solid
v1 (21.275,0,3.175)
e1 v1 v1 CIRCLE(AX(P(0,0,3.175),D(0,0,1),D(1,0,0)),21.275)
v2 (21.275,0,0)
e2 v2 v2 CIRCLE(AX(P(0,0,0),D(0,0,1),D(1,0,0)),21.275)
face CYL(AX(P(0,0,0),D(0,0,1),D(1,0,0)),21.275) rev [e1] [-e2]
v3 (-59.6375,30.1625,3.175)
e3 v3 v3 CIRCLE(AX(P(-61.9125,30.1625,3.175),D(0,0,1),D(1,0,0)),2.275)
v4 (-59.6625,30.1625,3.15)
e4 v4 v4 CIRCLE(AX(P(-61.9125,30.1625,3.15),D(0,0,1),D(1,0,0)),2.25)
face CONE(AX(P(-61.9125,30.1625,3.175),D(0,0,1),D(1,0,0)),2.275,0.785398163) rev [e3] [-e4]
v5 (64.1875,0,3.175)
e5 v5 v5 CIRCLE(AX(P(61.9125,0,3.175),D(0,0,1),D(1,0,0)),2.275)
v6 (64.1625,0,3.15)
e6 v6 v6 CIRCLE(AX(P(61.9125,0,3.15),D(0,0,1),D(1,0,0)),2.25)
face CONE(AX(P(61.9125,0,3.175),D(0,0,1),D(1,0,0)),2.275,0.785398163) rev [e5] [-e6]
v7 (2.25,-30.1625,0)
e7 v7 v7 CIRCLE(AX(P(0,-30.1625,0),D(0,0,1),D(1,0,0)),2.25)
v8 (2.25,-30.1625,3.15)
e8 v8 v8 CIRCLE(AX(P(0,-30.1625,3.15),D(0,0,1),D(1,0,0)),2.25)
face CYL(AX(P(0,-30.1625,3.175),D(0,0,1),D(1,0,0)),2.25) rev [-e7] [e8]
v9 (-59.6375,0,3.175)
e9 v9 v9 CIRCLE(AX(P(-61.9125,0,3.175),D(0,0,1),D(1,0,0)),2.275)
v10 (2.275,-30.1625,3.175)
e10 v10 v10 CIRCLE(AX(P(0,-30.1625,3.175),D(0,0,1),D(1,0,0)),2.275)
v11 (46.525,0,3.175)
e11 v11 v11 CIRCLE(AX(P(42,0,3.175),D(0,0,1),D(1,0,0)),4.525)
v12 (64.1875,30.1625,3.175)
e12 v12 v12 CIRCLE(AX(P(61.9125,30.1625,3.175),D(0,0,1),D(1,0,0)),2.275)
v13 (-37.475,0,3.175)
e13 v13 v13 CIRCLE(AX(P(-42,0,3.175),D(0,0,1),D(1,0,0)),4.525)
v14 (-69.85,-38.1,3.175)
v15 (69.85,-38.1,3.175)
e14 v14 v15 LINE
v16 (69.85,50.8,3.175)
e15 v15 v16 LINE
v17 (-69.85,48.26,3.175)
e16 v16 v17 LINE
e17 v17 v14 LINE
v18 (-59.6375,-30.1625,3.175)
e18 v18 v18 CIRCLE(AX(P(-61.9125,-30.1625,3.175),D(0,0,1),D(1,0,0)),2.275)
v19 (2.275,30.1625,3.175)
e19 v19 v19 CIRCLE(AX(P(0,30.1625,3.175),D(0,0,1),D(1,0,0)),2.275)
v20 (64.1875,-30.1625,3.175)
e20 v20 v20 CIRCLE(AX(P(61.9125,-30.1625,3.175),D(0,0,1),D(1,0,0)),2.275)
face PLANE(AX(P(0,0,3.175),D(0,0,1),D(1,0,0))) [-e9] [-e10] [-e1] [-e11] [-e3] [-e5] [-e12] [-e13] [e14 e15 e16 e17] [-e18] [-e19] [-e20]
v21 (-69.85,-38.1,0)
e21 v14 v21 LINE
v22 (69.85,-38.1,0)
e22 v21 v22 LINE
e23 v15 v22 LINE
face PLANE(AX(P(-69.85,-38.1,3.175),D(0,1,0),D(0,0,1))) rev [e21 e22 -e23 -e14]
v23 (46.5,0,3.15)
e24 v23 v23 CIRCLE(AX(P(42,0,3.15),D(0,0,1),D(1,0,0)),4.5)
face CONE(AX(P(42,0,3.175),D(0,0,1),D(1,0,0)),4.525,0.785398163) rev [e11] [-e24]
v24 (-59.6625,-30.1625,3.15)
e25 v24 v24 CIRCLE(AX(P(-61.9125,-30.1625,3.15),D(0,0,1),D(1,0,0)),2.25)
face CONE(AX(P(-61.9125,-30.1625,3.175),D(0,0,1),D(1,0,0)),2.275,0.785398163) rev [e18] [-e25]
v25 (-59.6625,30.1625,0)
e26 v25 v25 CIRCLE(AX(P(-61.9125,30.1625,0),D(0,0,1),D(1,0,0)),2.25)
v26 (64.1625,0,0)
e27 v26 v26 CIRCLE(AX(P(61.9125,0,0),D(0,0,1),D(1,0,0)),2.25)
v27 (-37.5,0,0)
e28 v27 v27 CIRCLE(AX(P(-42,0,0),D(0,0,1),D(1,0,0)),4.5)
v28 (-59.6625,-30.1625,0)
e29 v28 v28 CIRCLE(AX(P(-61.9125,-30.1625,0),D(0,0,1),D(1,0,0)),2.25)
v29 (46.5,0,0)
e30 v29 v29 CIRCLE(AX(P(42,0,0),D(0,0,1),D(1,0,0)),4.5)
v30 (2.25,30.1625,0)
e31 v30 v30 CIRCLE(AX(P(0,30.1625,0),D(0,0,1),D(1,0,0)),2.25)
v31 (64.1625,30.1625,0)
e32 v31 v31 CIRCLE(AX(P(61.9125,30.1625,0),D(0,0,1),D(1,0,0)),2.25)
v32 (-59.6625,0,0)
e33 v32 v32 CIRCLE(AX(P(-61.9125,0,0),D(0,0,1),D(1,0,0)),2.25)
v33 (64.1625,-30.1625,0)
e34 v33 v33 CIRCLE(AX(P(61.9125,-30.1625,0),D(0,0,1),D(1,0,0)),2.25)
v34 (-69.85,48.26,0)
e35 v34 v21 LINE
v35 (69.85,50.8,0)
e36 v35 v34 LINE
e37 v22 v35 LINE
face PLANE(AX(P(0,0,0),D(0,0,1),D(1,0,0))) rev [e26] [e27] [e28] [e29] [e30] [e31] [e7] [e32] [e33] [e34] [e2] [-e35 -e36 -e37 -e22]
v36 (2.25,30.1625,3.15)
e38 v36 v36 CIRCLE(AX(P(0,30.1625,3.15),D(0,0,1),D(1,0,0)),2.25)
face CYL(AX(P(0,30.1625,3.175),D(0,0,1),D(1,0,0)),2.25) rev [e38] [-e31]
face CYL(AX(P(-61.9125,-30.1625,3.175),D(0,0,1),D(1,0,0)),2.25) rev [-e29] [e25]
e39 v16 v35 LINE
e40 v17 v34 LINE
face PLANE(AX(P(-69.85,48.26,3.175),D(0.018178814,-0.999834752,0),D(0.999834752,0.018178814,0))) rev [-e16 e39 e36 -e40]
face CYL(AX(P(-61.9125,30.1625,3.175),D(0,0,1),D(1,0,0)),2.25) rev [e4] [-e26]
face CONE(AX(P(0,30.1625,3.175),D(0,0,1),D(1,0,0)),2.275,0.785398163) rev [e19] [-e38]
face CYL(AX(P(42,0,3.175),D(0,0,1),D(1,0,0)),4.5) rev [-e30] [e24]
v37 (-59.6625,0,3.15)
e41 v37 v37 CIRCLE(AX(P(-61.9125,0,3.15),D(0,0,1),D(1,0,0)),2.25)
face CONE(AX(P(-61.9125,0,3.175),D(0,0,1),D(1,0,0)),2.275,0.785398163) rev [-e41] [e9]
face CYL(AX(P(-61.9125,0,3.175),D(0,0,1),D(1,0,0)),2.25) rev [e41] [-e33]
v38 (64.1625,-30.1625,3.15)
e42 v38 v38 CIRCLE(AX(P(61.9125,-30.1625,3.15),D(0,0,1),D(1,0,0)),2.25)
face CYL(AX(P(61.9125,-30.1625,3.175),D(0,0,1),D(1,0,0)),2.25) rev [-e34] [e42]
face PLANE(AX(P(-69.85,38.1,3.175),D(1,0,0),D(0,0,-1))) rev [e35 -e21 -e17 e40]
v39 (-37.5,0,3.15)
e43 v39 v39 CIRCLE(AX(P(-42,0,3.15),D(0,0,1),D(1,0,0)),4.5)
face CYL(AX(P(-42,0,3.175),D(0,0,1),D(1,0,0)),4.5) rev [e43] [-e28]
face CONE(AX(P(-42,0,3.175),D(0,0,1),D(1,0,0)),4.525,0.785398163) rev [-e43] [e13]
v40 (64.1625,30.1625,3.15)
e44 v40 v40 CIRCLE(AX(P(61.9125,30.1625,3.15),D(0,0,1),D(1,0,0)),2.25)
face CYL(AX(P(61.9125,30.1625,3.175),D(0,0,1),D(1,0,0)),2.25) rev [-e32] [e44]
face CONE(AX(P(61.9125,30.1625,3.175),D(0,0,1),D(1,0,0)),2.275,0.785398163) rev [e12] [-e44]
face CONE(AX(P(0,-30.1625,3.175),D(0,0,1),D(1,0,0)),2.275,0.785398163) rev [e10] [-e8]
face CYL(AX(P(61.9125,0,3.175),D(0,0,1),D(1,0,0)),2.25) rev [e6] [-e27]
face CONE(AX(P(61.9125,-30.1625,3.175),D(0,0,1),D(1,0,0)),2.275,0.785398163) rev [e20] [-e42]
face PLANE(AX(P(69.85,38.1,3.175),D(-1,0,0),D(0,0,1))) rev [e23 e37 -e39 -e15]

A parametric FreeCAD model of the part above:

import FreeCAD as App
import Part
import Sketcher

V = App.Vector
Q = App.Units.Quantity

doc = App.newDocument("Part")
body = doc.addObject("PartDesign::Body", "Body")

sketch1 = doc.addObject("Sketcher::SketchObject", "Sketch")
body.addObject(sketch1)
sketch1.AttachmentSupport = (doc.XY_Plane, [""])
sketch1.MapMode = "FlatFace"
sketch1.addGeometry([
    Part.LineSegment(V(-69.85, 48.26, 0), V(-69.85, -38.1, 0)),
    Part.LineSegment(V(-69.85, -38.1, 0), V(69.85, -38.1, 0)),
    Part.LineSegment(V(69.85, -38.1, 0), V(69.85, 50.8, 0)),
    Part.LineSegment(V(69.85, 50.8, 0), V(-69.85, 48.26, 0)),
], False)
sketch1.addConstraint([
    Sketcher.Constraint("Coincident", 0, 2, 1, 1),
    Sketcher.Constraint("Coincident", 1, 2, 2, 1),
    Sketcher.Constraint("Coincident", 2, 2, 3, 1),
    Sketcher.Constraint("Coincident", 3, 2, 0, 1),
    Sketcher.Constraint("Vertical", 0),
    Sketcher.Constraint("Horizontal", 1),
    Sketcher.Constraint("Vertical", 2),
    Sketcher.Constraint("DistanceX", 1, 1, 1, 2, Q("5.5 in")),
    Sketcher.Constraint("DistanceY", 0, 2, 0, 1, Q("3.4 in")),
    Sketcher.Constraint("DistanceY", 2, 1, 2, 2, Q("3.5 in")),
    Sketcher.Constraint("DistanceY", -1, 1, 2, 2, Q("2 in")),
    Sketcher.Constraint("DistanceX", 0, 2, -1, 1, Q("2.75 in")),
])
pad1 = doc.addObject("PartDesign::Pad", "Pad")
body.addObject(pad1)
pad1.Profile = sketch1
pad1.Length = Q("0.125 in")

sketch2 = doc.addObject("Sketcher::SketchObject", "Sketch001")
body.addObject(sketch2)
sketch2.AttachmentSupport = (doc.XY_Plane, [""])
sketch2.MapMode = "FlatFace"
sketch2.AttachmentOffset = App.Placement(V(0, 0, 0.125 * 25.4), App.Rotation())
sketch2.addGeometry([
    Part.Circle(V(-61.9125, -30.1625, 0), V(0, 0, 1), 2.25),
    Part.Circle(V(0, -30.1625, 0), V(0, 0, 1), 2.25),
    Part.Circle(V(61.9125, -30.1625, 0), V(0, 0, 1), 2.25),
    Part.Circle(V(61.9125, 30.1625, 0), V(0, 0, 1), 2.25),
    Part.Circle(V(61.9125, 0, 0), V(0, 0, 1), 2.25),
    Part.Circle(V(0, 30.1625, 0), V(0, 0, 1), 2.25),
    Part.Circle(V(-61.9125, 30.1625, 0), V(0, 0, 1), 2.25),
    Part.Circle(V(-61.9125, 0, 0), V(0, 0, 1), 2.25),
], False)
sketch2.addConstraint([
    Sketcher.Constraint("Equal", 0, 1),
    Sketcher.Constraint("Equal", 1, 2),
    Sketcher.Constraint("Equal", 2, 3),
    Sketcher.Constraint("Equal", 3, 4),
    Sketcher.Constraint("Equal", 4, 5),
    Sketcher.Constraint("Equal", 5, 6),
    Sketcher.Constraint("Equal", 6, 7),
    Sketcher.Constraint("Symmetric", 0, 3, 3, 3, -1, 1),
    Sketcher.Constraint("Symmetric", 1, 3, 5, 3, -1, 1),
    Sketcher.Constraint("Symmetric", 2, 3, 6, 3, -1, 1),
    Sketcher.Constraint("Symmetric", 4, 3, 7, 3, -1, 1),
    Sketcher.Constraint("Symmetric", 0, 3, 2, 3, -2),
    Sketcher.Constraint("PointOnObject", 1, 3, -2),
    Sketcher.Constraint("PointOnObject", 4, 3, -1),
    Sketcher.Constraint("Horizontal", 0, 3, 1, 3),
    Sketcher.Constraint("Vertical", 3, 3, 4, 3),
    Sketcher.Constraint("Diameter", 0, 4.5),
    Sketcher.Constraint("DistanceX", 0, 3, -1, 1, Q("2.4375 in")),
    Sketcher.Constraint("DistanceY", 0, 3, -1, 1, Q("1.1875 in")),
])
doc.recompute()
hole = doc.addObject("PartDesign::Hole", "Hole")
body.addObject(hole)
hole.Profile = sketch2
hole.ThreadType = "None"
hole.Diameter = 4.5
hole.DepthType = "ThroughAll"
hole.HoleCutType = "Countersink"
hole.HoleCutDiameter = 4.55
hole.HoleCutCountersinkAngle = 90

sketch3 = doc.addObject("Sketcher::SketchObject", "Sketch002")
body.addObject(sketch3)
sketch3.AttachmentSupport = (doc.YZ_Plane, [""])
sketch3.MapMode = "FlatFace"
sketch3.AttachmentOffset = App.Placement(V(0, 0, -42), App.Rotation())
sketch3.addGeometry([
    Part.LineSegment(V(0, 0, 0), V(0, 3.175, 0)),
    Part.LineSegment(V(0, 3.175, 0), V(-4.525, 3.175, 0)),
    Part.LineSegment(V(-4.525, 3.175, 0), V(-4.5, 3.15, 0)),
    Part.LineSegment(V(-4.5, 3.15, 0), V(-4.5, 0, 0)),
    Part.LineSegment(V(-4.5, 0, 0), V(0, 0, 0)),
], False)
sketch3.addConstraint([
    Sketcher.Constraint("Coincident", 0, 2, 1, 1),
    Sketcher.Constraint("Coincident", 1, 2, 2, 1),
    Sketcher.Constraint("Coincident", 2, 2, 3, 1),
    Sketcher.Constraint("Coincident", 3, 2, 4, 1),
    Sketcher.Constraint("Coincident", 4, 2, 0, 1),
    Sketcher.Constraint("Vertical", 0),
    Sketcher.Constraint("Horizontal", 1),
    Sketcher.Constraint("Vertical", 3),
    Sketcher.Constraint("Horizontal", 4),
    Sketcher.Constraint("Coincident", 4, 2, -1, 1),
    Sketcher.Constraint("Angle", 2, Q("-45 deg")),
    Sketcher.Constraint("DistanceY", 0, 1, 0, 2, Q("0.125 in")),
    Sketcher.Constraint("DistanceX", 1, 2, 1, 1, 4.525),
    Sketcher.Constraint("DistanceX", 4, 1, 4, 2, 4.5),
])
groove = doc.addObject("PartDesign::Groove", "Groove")
body.addObject(groove)
groove.Profile = sketch3
groove.ReferenceAxis = (sketch3, ["V_Axis"])
groove.Angle = 360
doc.recompute()

linearpattern = doc.addObject("PartDesign::LinearPattern", "LinearPattern")
body.addObject(linearpattern)
linearpattern.Originals = [groove]
linearpattern.Direction = (doc.X_Axis, [""])
linearpattern.Mode = "offset"
linearpattern.Offset = 84
linearpattern.Occurrences = 2
body.Tip = linearpattern

sketch4 = doc.addObject("Sketcher::SketchObject", "Sketch003")
body.addObject(sketch4)
sketch4.AttachmentSupport = (doc.XY_Plane, [""])
sketch4.MapMode = "FlatFace"
sketch4.AttachmentOffset = App.Placement(V(0, 0, 0.125 * 25.4), App.Rotation())
sketch4.addGeometry(Part.Circle(V(0, 0, 0), V(0, 0, 1), 21.275), False)
sketch4.addConstraint([
    Sketcher.Constraint("Coincident", 0, 3, -1, 1),
    Sketcher.Constraint("Diameter", 0, 42.55),
])
pocket1 = doc.addObject("PartDesign::Pocket", "Pocket")
body.addObject(pocket1)
pocket1.Profile = sketch4
pocket1.Type = "ThroughAll"

doc.recompute()
